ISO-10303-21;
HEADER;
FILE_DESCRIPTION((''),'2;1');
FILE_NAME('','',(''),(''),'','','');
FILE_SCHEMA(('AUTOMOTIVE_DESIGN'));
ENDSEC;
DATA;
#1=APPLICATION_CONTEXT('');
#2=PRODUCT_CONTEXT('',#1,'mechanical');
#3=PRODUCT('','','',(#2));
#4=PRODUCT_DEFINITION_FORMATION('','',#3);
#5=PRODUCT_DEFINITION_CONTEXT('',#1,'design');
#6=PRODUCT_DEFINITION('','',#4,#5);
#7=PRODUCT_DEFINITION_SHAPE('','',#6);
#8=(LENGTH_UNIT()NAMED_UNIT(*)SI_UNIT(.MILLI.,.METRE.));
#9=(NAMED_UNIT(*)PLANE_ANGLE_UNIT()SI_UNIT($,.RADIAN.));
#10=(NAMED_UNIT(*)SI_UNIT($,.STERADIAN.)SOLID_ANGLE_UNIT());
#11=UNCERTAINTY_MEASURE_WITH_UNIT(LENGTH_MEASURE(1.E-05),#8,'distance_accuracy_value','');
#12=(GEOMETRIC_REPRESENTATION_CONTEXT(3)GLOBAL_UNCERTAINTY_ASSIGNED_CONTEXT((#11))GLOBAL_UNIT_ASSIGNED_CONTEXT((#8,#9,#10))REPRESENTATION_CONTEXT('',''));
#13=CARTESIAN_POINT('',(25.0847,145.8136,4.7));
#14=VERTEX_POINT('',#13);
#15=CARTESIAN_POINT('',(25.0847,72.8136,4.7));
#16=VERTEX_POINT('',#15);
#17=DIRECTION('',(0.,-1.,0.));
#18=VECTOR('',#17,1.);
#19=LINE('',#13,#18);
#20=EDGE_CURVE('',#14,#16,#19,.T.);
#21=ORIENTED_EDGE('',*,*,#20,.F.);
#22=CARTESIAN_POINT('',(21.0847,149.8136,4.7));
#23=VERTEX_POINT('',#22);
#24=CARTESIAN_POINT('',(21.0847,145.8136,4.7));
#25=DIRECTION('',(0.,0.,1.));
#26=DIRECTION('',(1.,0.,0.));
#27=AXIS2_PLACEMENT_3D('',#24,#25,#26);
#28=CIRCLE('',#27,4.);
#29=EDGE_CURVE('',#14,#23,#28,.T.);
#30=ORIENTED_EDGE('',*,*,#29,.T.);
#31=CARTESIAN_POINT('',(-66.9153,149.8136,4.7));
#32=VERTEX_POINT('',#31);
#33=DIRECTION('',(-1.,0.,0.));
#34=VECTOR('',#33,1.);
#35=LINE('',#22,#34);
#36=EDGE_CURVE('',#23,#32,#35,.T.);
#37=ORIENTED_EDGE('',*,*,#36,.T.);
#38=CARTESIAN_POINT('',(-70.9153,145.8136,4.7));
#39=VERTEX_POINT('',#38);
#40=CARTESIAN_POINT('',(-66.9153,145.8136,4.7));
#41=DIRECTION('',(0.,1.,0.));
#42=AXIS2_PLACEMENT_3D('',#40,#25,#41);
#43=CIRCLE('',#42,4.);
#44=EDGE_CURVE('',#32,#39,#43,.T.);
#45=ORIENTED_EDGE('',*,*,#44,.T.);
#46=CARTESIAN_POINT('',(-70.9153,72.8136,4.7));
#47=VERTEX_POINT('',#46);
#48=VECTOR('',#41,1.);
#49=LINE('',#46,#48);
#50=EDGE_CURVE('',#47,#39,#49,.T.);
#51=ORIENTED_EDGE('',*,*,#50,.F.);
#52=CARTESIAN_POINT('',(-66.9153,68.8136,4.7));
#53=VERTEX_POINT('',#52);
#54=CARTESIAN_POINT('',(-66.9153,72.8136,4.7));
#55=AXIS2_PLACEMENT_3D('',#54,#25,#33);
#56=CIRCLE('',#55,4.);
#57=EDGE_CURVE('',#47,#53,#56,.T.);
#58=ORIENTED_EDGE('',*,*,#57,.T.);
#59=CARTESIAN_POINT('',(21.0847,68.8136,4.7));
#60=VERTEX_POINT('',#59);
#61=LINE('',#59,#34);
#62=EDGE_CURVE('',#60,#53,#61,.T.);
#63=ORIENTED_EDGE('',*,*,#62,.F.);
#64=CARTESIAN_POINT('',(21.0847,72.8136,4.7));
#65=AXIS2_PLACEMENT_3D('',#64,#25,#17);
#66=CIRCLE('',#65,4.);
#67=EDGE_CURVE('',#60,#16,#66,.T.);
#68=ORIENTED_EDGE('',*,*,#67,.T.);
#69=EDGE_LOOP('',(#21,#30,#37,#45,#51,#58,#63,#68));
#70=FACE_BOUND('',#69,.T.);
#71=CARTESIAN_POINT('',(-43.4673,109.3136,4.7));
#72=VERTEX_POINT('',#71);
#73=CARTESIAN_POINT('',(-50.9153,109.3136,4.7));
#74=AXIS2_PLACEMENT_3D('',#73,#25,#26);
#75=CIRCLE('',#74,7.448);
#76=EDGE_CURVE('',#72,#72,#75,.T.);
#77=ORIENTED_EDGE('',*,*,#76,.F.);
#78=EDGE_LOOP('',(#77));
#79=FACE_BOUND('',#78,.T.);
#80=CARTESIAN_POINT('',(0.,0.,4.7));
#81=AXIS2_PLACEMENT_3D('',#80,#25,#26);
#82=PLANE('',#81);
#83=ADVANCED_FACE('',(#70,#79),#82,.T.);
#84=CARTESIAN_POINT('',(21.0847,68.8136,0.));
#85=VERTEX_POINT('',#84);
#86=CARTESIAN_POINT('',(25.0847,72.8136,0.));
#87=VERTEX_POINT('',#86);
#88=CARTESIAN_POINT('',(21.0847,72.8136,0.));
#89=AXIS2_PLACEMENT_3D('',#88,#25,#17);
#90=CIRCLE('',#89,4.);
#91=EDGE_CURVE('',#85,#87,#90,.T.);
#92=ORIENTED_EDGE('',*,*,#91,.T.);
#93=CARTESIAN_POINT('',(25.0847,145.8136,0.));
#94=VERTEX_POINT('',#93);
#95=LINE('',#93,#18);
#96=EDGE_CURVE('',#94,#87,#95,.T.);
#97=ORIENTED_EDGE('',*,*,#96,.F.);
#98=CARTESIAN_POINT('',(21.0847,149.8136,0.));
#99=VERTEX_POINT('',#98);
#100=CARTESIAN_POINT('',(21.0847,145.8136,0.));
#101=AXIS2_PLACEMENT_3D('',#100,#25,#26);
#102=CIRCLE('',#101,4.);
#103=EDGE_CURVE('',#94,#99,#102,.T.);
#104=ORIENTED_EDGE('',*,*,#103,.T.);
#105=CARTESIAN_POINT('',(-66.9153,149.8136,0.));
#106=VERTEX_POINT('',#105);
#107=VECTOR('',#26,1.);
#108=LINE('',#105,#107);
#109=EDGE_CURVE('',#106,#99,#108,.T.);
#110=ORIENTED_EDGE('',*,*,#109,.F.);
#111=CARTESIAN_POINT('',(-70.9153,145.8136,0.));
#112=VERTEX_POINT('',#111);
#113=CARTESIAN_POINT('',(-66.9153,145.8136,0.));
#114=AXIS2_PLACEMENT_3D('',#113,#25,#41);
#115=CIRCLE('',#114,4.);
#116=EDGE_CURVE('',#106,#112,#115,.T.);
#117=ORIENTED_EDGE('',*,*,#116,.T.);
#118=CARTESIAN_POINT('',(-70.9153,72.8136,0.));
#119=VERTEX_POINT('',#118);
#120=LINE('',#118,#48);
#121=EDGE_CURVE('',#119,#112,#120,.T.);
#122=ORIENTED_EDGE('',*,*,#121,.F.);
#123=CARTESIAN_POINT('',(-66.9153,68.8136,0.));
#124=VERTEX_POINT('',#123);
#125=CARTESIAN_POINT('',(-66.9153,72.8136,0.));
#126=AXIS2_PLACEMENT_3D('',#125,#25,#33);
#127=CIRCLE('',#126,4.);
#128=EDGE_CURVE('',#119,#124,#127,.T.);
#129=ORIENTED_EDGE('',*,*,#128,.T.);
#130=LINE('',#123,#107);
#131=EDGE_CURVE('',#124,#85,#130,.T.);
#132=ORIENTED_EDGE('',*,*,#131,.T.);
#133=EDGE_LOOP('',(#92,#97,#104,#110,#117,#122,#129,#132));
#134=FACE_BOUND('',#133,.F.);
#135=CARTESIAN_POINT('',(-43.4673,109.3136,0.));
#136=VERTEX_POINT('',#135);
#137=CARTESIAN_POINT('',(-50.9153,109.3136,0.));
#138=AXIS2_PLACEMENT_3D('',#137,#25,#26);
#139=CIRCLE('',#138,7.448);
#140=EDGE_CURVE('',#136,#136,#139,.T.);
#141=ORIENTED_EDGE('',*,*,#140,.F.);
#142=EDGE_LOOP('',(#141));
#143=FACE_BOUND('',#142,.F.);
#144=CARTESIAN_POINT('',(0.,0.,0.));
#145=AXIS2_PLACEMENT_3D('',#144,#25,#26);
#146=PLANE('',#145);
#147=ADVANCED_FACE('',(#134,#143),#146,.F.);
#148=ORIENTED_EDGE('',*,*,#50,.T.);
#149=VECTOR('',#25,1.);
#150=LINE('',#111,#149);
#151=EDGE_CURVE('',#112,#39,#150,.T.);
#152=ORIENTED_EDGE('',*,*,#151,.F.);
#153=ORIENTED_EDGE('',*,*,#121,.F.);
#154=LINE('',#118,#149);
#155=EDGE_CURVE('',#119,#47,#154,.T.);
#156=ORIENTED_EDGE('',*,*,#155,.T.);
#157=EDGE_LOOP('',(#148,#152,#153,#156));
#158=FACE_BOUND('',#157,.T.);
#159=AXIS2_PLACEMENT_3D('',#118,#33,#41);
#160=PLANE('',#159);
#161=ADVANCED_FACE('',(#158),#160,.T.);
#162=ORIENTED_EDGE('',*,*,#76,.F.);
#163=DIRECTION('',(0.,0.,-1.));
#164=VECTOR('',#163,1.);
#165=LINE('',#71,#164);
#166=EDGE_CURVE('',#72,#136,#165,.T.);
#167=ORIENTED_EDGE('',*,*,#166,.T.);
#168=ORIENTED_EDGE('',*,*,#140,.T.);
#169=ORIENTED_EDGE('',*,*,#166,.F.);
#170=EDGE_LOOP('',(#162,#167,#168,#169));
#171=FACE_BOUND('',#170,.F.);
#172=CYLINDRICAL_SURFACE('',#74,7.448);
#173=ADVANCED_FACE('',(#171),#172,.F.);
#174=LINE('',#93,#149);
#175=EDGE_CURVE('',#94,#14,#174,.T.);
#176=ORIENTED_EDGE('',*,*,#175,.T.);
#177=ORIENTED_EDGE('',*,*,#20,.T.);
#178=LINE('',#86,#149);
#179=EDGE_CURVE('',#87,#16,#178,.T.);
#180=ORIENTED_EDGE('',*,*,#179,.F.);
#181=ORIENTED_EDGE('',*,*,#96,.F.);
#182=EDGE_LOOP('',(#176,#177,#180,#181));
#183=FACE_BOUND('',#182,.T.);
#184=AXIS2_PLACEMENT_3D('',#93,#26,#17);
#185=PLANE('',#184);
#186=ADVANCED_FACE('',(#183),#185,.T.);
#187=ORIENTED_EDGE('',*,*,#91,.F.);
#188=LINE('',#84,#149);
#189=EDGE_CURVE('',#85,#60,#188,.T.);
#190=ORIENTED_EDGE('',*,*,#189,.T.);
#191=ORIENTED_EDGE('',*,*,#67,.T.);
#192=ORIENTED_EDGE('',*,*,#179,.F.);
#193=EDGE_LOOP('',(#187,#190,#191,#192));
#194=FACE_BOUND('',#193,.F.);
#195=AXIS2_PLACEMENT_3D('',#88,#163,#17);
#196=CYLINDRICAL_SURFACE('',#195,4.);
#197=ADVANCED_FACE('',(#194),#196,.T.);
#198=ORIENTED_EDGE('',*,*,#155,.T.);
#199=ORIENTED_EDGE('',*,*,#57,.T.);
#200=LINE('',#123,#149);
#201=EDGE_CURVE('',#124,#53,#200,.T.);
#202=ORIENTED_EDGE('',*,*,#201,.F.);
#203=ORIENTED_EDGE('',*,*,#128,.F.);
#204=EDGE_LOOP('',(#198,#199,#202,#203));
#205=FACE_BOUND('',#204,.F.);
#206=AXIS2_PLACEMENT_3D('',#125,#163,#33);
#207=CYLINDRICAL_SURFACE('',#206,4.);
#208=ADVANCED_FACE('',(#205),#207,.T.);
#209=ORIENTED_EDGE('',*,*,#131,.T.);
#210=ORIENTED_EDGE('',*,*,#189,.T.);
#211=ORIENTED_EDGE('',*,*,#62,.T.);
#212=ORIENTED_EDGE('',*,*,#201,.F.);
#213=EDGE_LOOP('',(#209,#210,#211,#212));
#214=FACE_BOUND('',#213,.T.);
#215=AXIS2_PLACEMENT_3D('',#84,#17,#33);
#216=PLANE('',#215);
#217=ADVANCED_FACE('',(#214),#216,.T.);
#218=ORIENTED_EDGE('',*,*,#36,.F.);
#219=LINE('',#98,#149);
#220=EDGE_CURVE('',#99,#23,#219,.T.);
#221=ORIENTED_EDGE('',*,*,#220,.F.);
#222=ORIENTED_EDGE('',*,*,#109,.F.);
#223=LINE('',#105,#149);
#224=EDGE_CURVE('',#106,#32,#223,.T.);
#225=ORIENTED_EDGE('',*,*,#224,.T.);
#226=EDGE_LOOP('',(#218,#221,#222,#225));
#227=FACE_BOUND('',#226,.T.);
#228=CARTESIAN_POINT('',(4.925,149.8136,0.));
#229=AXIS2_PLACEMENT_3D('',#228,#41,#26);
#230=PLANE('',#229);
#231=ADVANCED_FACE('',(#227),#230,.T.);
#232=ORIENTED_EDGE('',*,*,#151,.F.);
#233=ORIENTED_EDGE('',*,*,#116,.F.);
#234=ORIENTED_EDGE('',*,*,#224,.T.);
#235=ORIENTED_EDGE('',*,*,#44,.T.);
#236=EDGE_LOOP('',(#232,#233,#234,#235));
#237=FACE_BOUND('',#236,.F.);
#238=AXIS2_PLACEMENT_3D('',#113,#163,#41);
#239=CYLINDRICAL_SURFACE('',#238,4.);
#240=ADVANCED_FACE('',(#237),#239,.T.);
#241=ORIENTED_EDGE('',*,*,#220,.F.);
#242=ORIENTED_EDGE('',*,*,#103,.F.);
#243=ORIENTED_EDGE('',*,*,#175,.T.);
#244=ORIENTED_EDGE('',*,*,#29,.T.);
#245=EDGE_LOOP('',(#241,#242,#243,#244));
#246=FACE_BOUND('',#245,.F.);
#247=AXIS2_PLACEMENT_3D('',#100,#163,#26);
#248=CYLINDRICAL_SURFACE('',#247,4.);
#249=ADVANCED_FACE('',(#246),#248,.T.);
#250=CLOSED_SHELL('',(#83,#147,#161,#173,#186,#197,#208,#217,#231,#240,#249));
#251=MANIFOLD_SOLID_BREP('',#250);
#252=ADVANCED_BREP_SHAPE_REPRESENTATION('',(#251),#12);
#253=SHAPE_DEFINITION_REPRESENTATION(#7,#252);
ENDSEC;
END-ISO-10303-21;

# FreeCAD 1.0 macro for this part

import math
import FreeCAD as App
import Part
import Sketcher

V = App.Vector
Q = App.Units.Quantity

doc = App.newDocument("Part")
body = doc.addObject("PartDesign::Body", "Body")

# Sketch on XY plane
sketch1 = body.newObject("Sketcher::SketchObject", "Sketch")
sketch1.AttachmentSupport = (doc.getObject("XY_Plane"), [""])
sketch1.MapMode = "FlatFace"
sketch1.addGeometry([
    Part.ArcOfCircle(Part.Circle(V(21.1, 72.8, 0), V(0, 0, 1), 4), math.radians(-90), math.radians(0)),  # 0
    Part.LineSegment(V(25.1, 72.8, 0), V(25.1, 145.8, 0)),  # 1
    Part.ArcOfCircle(Part.Circle(V(21.1, 145.8, 0), V(0, 0, 1), 4), math.radians(0), math.radians(90)),  # 2
    Part.LineSegment(V(21.1, 149.8, 0), V(-66.9, 149.8, 0)),  # 3
    Part.ArcOfCircle(Part.Circle(V(-66.9, 145.8, 0), V(0, 0, 1), 4), math.radians(90), math.radians(180)),  # 4
    Part.LineSegment(V(-70.9, 145.8, 0), V(-70.9, 72.8, 0)),  # 5
    Part.ArcOfCircle(Part.Circle(V(-66.9, 72.8, 0), V(0, 0, 1), 4), math.radians(180), math.radians(270)),  # 6
    Part.LineSegment(V(-66.9, 68.8, 0), V(21.1, 68.8, 0)),  # 7
], False)
sketch1.addConstraint([
    Sketcher.Constraint("Tangent", 0, 2, 1, 1),
    Sketcher.Constraint("Tangent", 1, 2, 2, 1),
    Sketcher.Constraint("Tangent", 2, 2, 3, 1),
    Sketcher.Constraint("Tangent", 3, 2, 4, 1),
    Sketcher.Constraint("Tangent", 4, 2, 5, 1),
    Sketcher.Constraint("Tangent", 5, 2, 6, 1),
    Sketcher.Constraint("Tangent", 6, 2, 7, 1),
    Sketcher.Constraint("Tangent", 7, 2, 0, 1),
    Sketcher.Constraint("Vertical", 1),
    Sketcher.Constraint("Horizontal", 3),
    Sketcher.Constraint("Vertical", 5),
    Sketcher.Constraint("Horizontal", 7),
    Sketcher.Constraint("Equal", 0, 2),
    Sketcher.Constraint("Equal", 2, 4),
    Sketcher.Constraint("Equal", 4, 6),
    Sketcher.Constraint("Radius", 0, Q("4 mm")),
    Sketcher.Constraint("DistanceY", 6, 2, 3, 2, Q("81 mm")),
    Sketcher.Constraint("DistanceX", 3, 2, 3, 1, Q("88 mm")),
    Sketcher.Constraint("DistanceX", -1, 1, 0, 3, Q("21.0847 mm")),
    Sketcher.Constraint("DistanceY", -1, 1, 0, 3, Q("72.8136 mm")),
])
pad1 = body.newObject("PartDesign::Pad", "Pad")
pad1.Profile = sketch1
pad1.Length = 4.7

# Sketch on XY plane
sketch2 = body.newObject("Sketcher::SketchObject", "Sketch001")
sketch2.AttachmentSupport = (doc.getObject("XY_Plane"), [""])
sketch2.MapMode = "FlatFace"
sketch2.AttachmentOffset = App.Placement(V(0, 0, 4.7), App.Rotation())
sketch2.addGeometry(Part.Circle(V(-51, 109, 0), V(0, 0, 1), 7), False)
sketch2.addConstraint([
    Sketcher.Constraint("Diameter", 0, Q("14.896 mm")),
    Sketcher.Constraint("DistanceX", 0, 3, -1, 1, Q("50.9153 mm")),
    Sketcher.Constraint("DistanceY", -1, 1, 0, 3, Q("109.3136 mm")),
])
pocket1 = body.newObject("PartDesign::Pocket", "Pocket")
pocket1.Profile = sketch2
pocket1.Type = "ThroughAll"

doc.recompute()
